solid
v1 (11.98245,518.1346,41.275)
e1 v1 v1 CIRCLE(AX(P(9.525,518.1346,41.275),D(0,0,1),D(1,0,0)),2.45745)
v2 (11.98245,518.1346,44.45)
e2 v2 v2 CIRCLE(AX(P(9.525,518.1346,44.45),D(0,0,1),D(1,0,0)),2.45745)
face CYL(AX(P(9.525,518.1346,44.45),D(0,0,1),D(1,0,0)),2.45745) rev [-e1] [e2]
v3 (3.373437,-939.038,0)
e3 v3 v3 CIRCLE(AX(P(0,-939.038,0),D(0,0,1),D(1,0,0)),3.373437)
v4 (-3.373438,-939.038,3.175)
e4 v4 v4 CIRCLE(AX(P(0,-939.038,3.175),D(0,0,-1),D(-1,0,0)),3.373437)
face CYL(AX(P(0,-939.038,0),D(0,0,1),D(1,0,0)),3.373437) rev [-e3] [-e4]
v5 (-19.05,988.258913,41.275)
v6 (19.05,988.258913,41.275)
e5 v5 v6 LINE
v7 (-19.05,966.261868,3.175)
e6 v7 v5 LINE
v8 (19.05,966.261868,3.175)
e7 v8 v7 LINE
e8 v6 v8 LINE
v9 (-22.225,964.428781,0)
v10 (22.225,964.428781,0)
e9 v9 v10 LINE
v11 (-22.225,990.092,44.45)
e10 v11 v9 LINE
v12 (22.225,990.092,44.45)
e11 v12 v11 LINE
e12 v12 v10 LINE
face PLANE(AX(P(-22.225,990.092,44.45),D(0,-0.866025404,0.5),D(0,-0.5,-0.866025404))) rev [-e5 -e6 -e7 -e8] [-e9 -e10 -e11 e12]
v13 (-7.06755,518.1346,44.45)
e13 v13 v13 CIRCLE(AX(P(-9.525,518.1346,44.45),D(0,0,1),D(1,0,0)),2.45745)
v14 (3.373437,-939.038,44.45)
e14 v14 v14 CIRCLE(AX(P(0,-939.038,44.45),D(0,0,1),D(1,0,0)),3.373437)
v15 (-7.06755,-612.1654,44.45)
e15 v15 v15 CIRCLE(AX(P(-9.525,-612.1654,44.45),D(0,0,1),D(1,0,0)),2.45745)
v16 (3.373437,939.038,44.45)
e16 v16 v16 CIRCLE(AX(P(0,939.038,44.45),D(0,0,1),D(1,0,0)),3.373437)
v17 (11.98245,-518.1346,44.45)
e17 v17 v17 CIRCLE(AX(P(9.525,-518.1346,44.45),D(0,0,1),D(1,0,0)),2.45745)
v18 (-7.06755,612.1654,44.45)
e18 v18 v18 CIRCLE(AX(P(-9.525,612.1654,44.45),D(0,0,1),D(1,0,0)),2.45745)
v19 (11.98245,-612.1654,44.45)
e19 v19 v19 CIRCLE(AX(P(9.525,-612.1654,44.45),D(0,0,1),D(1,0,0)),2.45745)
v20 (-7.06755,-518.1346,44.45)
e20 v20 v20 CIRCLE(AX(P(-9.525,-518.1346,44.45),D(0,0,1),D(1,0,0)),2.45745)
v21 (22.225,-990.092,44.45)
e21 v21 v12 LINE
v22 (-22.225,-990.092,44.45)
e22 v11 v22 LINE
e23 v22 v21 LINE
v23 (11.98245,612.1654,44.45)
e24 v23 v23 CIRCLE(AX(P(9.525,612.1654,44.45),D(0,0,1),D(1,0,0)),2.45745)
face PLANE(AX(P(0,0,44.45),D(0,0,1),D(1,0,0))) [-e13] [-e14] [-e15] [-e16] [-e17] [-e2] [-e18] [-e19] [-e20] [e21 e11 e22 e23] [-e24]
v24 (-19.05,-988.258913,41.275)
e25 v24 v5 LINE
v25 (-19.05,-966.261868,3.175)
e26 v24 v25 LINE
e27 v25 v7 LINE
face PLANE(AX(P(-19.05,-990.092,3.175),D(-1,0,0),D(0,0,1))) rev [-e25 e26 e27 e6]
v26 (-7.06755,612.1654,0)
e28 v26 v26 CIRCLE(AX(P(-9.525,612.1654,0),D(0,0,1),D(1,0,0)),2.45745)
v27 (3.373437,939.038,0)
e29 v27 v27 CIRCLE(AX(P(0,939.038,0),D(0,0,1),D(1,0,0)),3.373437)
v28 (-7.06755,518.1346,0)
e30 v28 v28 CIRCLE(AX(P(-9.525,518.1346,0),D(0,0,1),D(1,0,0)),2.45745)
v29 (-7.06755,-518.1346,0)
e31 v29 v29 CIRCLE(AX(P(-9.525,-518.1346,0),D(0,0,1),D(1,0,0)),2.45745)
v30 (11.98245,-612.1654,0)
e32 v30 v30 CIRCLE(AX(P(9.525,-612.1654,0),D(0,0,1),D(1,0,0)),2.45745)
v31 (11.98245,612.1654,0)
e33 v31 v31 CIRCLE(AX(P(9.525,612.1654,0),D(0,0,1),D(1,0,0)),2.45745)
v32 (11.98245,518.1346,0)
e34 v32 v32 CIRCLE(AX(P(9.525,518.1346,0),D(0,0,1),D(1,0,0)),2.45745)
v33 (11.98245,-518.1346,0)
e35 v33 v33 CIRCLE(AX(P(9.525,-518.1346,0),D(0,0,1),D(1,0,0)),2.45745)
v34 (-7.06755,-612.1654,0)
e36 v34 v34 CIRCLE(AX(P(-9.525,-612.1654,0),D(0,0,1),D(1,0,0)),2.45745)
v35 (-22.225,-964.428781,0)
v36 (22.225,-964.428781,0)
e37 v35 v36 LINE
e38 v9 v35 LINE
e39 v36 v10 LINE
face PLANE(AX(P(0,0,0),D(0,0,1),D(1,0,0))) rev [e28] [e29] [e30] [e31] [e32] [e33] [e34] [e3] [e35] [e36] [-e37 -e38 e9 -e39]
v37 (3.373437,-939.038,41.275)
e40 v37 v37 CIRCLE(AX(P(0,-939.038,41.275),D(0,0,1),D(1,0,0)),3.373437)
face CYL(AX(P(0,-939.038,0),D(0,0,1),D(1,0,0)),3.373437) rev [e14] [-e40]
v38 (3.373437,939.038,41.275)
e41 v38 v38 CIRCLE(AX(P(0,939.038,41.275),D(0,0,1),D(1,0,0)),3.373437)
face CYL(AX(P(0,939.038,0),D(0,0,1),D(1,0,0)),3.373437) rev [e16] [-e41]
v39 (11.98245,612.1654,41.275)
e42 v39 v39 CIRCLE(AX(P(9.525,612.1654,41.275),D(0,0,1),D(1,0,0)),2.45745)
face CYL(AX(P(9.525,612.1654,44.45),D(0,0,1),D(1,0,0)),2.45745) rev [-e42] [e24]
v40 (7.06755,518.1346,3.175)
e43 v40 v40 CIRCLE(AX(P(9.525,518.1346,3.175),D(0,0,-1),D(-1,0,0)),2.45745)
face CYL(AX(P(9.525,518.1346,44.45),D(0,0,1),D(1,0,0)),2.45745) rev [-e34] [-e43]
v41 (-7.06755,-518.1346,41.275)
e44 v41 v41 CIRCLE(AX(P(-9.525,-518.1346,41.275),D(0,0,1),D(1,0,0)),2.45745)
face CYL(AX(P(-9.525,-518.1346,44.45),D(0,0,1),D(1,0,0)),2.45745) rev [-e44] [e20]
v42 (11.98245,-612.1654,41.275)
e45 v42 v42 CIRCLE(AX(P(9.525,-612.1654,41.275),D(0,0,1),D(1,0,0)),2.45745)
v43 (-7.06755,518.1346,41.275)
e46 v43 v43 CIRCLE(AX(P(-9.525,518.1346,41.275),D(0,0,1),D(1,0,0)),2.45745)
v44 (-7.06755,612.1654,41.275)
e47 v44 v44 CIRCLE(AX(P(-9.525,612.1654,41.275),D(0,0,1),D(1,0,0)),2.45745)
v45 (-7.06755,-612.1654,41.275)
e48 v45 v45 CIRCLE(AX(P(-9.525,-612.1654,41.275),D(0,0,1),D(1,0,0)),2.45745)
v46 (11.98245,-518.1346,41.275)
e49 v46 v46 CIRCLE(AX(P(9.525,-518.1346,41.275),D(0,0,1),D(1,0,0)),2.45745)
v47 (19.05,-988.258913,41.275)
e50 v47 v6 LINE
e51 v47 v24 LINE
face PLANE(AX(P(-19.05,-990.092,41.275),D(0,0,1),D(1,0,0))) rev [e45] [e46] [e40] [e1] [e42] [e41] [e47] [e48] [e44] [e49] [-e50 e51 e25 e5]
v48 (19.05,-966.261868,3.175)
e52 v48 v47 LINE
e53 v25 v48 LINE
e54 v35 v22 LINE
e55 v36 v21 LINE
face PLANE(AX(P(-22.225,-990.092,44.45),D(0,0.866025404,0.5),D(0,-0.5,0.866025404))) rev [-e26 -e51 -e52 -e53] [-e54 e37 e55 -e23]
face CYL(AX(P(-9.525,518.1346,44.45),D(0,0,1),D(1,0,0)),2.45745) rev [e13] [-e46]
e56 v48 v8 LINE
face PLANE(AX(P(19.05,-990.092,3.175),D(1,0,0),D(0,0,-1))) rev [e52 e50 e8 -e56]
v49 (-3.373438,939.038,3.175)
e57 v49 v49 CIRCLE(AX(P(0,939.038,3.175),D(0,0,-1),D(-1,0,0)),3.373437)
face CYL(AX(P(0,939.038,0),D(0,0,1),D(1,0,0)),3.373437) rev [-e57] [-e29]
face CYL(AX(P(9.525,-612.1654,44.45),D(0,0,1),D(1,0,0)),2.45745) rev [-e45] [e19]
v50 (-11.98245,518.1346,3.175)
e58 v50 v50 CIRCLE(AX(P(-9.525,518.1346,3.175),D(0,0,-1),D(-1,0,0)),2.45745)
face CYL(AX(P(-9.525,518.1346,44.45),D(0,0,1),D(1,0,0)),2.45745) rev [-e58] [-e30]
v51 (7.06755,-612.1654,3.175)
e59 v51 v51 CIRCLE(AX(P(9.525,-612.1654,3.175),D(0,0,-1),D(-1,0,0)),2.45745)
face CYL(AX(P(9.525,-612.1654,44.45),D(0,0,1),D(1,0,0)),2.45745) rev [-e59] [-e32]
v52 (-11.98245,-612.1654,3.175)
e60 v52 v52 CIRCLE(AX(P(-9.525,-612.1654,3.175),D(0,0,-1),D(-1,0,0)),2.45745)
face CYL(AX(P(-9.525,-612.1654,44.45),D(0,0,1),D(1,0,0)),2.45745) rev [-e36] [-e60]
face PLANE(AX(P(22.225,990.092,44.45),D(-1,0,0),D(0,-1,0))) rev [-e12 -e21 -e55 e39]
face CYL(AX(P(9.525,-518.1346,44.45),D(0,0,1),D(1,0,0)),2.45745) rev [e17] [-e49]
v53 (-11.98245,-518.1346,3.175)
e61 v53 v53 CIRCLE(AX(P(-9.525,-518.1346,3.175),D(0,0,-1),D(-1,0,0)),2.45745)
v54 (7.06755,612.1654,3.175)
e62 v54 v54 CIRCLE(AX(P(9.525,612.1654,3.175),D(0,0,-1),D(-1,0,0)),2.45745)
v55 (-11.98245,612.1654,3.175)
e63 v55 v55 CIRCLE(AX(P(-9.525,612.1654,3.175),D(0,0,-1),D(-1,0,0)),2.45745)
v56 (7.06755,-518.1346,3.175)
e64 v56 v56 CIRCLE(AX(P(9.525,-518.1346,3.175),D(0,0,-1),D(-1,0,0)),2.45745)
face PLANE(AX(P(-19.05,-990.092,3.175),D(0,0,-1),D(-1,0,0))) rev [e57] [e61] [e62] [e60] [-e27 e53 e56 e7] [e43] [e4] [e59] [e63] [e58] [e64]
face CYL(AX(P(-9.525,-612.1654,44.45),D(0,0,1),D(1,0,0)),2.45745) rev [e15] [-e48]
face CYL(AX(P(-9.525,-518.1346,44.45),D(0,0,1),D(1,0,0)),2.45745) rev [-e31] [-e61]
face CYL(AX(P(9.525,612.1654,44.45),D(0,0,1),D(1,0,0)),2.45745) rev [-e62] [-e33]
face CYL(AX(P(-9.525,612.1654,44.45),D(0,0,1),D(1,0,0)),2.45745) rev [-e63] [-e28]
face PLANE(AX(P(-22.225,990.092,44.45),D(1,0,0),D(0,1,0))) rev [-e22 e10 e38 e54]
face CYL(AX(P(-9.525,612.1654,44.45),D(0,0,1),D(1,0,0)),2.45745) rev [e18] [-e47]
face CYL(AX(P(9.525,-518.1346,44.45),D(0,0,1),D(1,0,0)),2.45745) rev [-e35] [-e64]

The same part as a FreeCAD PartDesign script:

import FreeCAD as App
import Part
import Sketcher
Q = App.Units.Quantity


def add_polygon(sketch, points):
    """Adds a closed chain of lines whose ends are joined by coincident constraints."""
    first, n = sketch.GeometryCount, len(points)
    for a, b in zip(points, points[1:] + points[:1]):
        sketch.addGeometry(Part.LineSegment(App.Vector(*a, 0), App.Vector(*b, 0)), False)
    for i in range(n):
        sketch.addConstraint(Sketcher.Constraint("Coincident", first + i, 2, first + (i + 1) % n, 1))

doc = App.newDocument("Part")
body = doc.addObject("PartDesign::Body", "Body")

sketch1 = doc.addObject("Sketcher::SketchObject", "Sketch")
body.addObject(sketch1)
sketch1.AttachmentSupport = (doc.XY_Plane, [""])
sketch1.MapMode = "FlatFace"
add_polygon(sketch1, [(-22.225, 990.092), (-22.225, -990.092), (22.225, -990.092), (22.225, 990.092)])
sketch1.addConstraint([
    Sketcher.Constraint("Vertical", 0),
    Sketcher.Constraint("Horizontal", 1),
    Sketcher.Constraint("Vertical", 2),
    Sketcher.Constraint("Horizontal", 3),
    Sketcher.Constraint("Symmetric", 0, 2, 2, 2, -1, 1),
    Sketcher.Constraint("DistanceX", 1, 1, 1, 2, Q("1.75 in")),
    Sketcher.Constraint("DistanceY", 0, 2, 0, 1, Q("77.96 in")),
])
pad1 = doc.addObject("PartDesign::Pad", "Pad")
body.addObject(pad1)
pad1.Profile = sketch1
pad1.Length = Q("1.75 in")

sketch2 = doc.addObject("Sketcher::SketchObject", "Sketch001")
body.addObject(sketch2)
sketch2.AttachmentSupport = (doc.XZ_Plane, [""])
sketch2.MapMode = "FlatFace"
sketch2.AttachmentOffset = App.Placement(App.Vector(0, 0, -38.98 * 25.4), App.Rotation())
add_polygon(sketch2, [(-19.05, 3.175), (-19.05, 41.275), (19.05, 41.275), (19.05, 3.175)])
sketch2.addConstraint([
    Sketcher.Constraint("Vertical", 0),
    Sketcher.Constraint("Horizontal", 1),
    Sketcher.Constraint("Vertical", 2),
    Sketcher.Constraint("Horizontal", 3),
    Sketcher.Constraint("Equal", 3, 0),
    Sketcher.Constraint("DistanceX", 1, 1, 1, 2, Q("1.5 in")),
    Sketcher.Constraint("DistanceX", 0, 2, -1, 1, Q("0.75 in")),
    Sketcher.Constraint("DistanceY", -1, 1, 0, 2, Q("1.625 in")),
])
pocket1 = doc.addObject("PartDesign::Pocket", "Pocket")
body.addObject(pocket1)
pocket1.Profile = sketch2
pocket1.Type = "ThroughAll"
pocket1.Reversed = True

sketch3 = doc.addObject("Sketcher::SketchObject", "Sketch002")
body.addObject(sketch3)
sketch3.AttachmentSupport = (doc.YZ_Plane, [""])
sketch3.MapMode = "FlatFace"
sketch3.AttachmentOffset = App.Placement(App.Vector(0, 0, 0.875 * 25.4), App.Rotation())
add_polygon(sketch3, [(990.092, 44.45), (964.428781, 0), (990.092, 0)])
add_polygon(sketch3, [(-964.428781, 0), (-990.092, 44.45), (-990.092, 0)])
sketch3.addConstraint([
    Sketcher.Constraint("Horizontal", 1),
    Sketcher.Constraint("Vertical", 2),
    Sketcher.Constraint("Vertical", 4),
    Sketcher.Constraint("Horizontal", 5),
    Sketcher.Constraint("Symmetric", 1, 2, 4, 2, -1, 1),
    Sketcher.Constraint("Symmetric", 0, 2, 5, 2, -2),
    Sketcher.Constraint("Horizontal", 2, 2, 3, 2),
    Sketcher.Constraint("Angle", 0, Q("-120 deg")),
    Sketcher.Constraint("DistanceY", 2, 1, 2, 2, Q("1.75 in")),
    Sketcher.Constraint("DistanceX", -1, 1, 1, 2, Q("38.98 in")),
])
pocket2 = doc.addObject("PartDesign::Pocket", "Pocket001")
body.addObject(pocket2)
pocket2.Profile = sketch3
pocket2.Type = "ThroughAll"

sketch4 = doc.addObject("Sketcher::SketchObject", "Sketch003")
body.addObject(sketch4)
sketch4.AttachmentSupport = (doc.XY_Plane, [""])
sketch4.MapMode = "FlatFace"
sketch4.AttachmentOffset = App.Placement(App.Vector(0, 0, 1.75 * 25.4), App.Rotation())
sketch4.addGeometry([
    Part.Circle(App.Vector(0, 939.038, 0), App.Vector(0, 0, 1), 3.373438),
    Part.Circle(App.Vector(0, -939.038, 0), App.Vector(0, 0, 1), 3.373438),
], False)
sketch4.addConstraint([
    Sketcher.Constraint("Equal", 0, 1),
    Sketcher.Constraint("Symmetric", 0, 3, 1, 3, -1, 1),
    Sketcher.Constraint("PointOnObject", 0, 3, -2),
    Sketcher.Constraint("Diameter", 0, Q("0.265625 in")),
    Sketcher.Constraint("DistanceY", -1, 1, 0, 3, Q("36.97 in")),
])
pocket3 = doc.addObject("PartDesign::Pocket", "Pocket002")
body.addObject(pocket3)
pocket3.Profile = sketch4
pocket3.Type = "ThroughAll"

sketch5 = doc.addObject("Sketcher::SketchObject", "Sketch004")
body.addObject(sketch5)
sketch5.AttachmentSupport = (doc.XY_Plane, [""])
sketch5.MapMode = "FlatFace"
sketch5.AttachmentOffset = App.Placement(App.Vector(0, 0, 1.75 * 25.4), App.Rotation())
sketch5.addGeometry([
    Part.Circle(App.Vector(-9.525, -612.1654, 0), App.Vector(0, 0, 1), 2.45745),
    Part.Circle(App.Vector(9.525, -612.1654, 0), App.Vector(0, 0, 1), 2.45745),
    Part.Circle(App.Vector(-9.525, -518.1346, 0), App.Vector(0, 0, 1), 2.45745),
    Part.Circle(App.Vector(9.525, -518.1346, 0), App.Vector(0, 0, 1), 2.45745),
    Part.Circle(App.Vector(-9.525, 518.1346, 0), App.Vector(0, 0, 1), 2.45745),
    Part.Circle(App.Vector(9.525, 518.1346, 0), App.Vector(0, 0, 1), 2.45745),
    Part.Circle(App.Vector(-9.525, 612.1654, 0), App.Vector(0, 0, 1), 2.45745),
    Part.Circle(App.Vector(9.525, 612.1654, 0), App.Vector(0, 0, 1), 2.45745),
], False)
sketch5.addConstraint([
    Sketcher.Constraint("Equal", 0, 1),
    Sketcher.Constraint("Equal", 1, 2),
    Sketcher.Constraint("Equal", 2, 3),
    Sketcher.Constraint("Equal", 3, 4),
    Sketcher.Constraint("Equal", 4, 5),
    Sketcher.Constraint("Equal", 5, 6),
    Sketcher.Constraint("Equal", 6, 7),
    Sketcher.Constraint("Symmetric", 3, 3, 4, 3, -1, 1),
    Sketcher.Constraint("Symmetric", 2, 3, 5, 3, -1, 1),
    Sketcher.Constraint("Symmetric", 1, 3, 6, 3, -1, 1),
    Sketcher.Constraint("Symmetric", 0, 3, 7, 3, -1, 1),
    Sketcher.Constraint("Symmetric", 0, 3, 1, 3, -2),
    Sketcher.Constraint("Symmetric", 2, 3, 3, 3, -2),
    Sketcher.Constraint("Vertical", 0, 3, 2, 3),
    Sketcher.Constraint("Diameter", 0, Q("0.1935 in")),
    Sketcher.Constraint("DistanceY", 0, 3, 4, 3, Q("44.5 in")),
    Sketcher.Constraint("DistanceX", 0, 3, 1, 3, Q("0.75 in")),
    Sketcher.Constraint("DistanceY", 0, 3, -1, 1, Q("24.101 in")),
])
doc.recompute()
hole = doc.addObject("PartDesign::Hole", "Hole")
body.addObject(hole)
hole.Profile = sketch5
hole.ThreadType = "None"
hole.Diameter = Q("0.1935 in")
hole.DepthType = "ThroughAll"

doc.recompute()
